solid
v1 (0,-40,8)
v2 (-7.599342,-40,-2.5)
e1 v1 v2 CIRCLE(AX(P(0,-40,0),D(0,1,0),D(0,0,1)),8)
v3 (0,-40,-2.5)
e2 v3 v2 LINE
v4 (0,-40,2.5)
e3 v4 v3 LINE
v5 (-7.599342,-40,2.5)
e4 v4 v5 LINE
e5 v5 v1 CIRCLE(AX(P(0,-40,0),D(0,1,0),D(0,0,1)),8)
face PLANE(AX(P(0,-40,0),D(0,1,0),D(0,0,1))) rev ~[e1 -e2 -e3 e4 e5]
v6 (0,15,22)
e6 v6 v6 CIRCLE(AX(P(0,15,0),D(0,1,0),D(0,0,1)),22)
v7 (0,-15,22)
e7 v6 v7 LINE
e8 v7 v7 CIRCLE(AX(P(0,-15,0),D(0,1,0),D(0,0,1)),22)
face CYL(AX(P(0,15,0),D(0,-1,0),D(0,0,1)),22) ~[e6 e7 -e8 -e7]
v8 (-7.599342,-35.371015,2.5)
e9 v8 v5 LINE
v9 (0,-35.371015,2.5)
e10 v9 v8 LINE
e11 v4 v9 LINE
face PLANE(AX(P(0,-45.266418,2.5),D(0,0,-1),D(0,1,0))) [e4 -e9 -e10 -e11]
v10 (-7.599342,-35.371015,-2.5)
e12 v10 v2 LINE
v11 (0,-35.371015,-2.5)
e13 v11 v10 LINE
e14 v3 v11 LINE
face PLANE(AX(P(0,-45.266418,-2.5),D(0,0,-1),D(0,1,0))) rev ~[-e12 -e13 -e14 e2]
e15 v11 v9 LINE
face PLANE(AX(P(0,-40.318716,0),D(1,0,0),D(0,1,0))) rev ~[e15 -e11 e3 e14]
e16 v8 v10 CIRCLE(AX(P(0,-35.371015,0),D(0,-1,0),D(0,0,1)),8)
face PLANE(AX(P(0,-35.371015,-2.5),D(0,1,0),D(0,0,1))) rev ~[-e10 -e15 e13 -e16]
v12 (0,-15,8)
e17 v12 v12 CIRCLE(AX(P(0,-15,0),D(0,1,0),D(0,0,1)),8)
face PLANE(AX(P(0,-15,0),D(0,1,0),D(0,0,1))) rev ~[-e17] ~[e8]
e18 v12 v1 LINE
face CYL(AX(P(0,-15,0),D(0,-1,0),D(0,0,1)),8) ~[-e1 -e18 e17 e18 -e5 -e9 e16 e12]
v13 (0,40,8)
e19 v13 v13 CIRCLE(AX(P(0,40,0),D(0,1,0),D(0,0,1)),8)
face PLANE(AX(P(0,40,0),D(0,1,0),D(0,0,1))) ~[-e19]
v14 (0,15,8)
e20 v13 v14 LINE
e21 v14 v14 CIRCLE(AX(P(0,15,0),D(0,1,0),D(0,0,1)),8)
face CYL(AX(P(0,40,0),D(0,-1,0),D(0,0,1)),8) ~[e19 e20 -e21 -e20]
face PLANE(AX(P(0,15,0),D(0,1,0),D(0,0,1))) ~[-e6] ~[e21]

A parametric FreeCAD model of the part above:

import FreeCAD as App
import Part
import Sketcher

V = App.Vector
Q = App.Units.Quantity


def add_polygon(sketch, points):
    """Adds a closed chain of lines whose ends are joined by coincident constraints."""
    first, n = sketch.GeometryCount, len(points)
    for a, b in zip(points, points[1:] + points[:1]):
        sketch.addGeometry(Part.LineSegment(App.Vector(*a, 0), App.Vector(*b, 0)), False)
    for i in range(n):
        sketch.addConstraint(Sketcher.Constraint("Coincident", first + i, 2, first + (i + 1) % n, 1))

doc = App.newDocument("Part")
params = doc.addObject("Spreadsheet::Sheet", "Params")
for row, (alias, value) in enumerate([
    ("sketch1_width", "80 mm"),
    ("sketch1_width2", "25 mm"),
    ("sketch1_height", "8 mm"),
    ("sketch1_height2", "14 mm"),
    ("revolution_angle", "360 deg"),
    ("sketch2_height", "5 mm"),
], start=1):
    params.set(f"A{row}", alias)
    params.set(f"B{row}", "=" + value)
    params.setAlias(f"B{row}", alias)

body = doc.addObject("PartDesign::Body", "Body")

# Sketch on YZ plane
sketch1 = body.newObject("Sketcher::SketchObject", "Sketch")
sketch1.AttachmentSupport = (doc.getObject("YZ_Plane"), [""])
sketch1.MapMode = "FlatFace"
add_polygon(sketch1, [(-40, 8), (-40, 0), (40, 0), (40, 8), (15, 8), (15, 22), (-15, 22), (-15, 8)])  # lines 0-7
sketch1.addConstraint([
    Sketcher.Constraint("Vertical", 0),
    Sketcher.Constraint("Horizontal", 1),
    Sketcher.Constraint("Vertical", 2),
    Sketcher.Constraint("Horizontal", 3),
    Sketcher.Constraint("Vertical", 4),
    Sketcher.Constraint("Horizontal", 5),
    Sketcher.Constraint("Vertical", 6),
    Sketcher.Constraint("Horizontal", 7),
    Sketcher.Constraint("Symmetric", 0, 2, 1, 2, -1, 1),
    Sketcher.Constraint("Symmetric", 3, 2, 6, 2, -2),
    Sketcher.Constraint("DistanceX", 1, 1, 1, 2, Q("80 mm")),
    Sketcher.Constraint("DistanceX", 3, 2, 3, 1, Q("25 mm")),
    Sketcher.Constraint("DistanceY", 0, 2, 0, 1, Q("8 mm")),
    Sketcher.Constraint("DistanceY", 4, 1, 4, 2, Q("14 mm")),
])
sketch1.setExpression("Constraints[18]", "Params.sketch1_width")
sketch1.setExpression("Constraints[19]", "Params.sketch1_width2")
sketch1.setExpression("Constraints[20]", "Params.sketch1_height")
sketch1.setExpression("Constraints[21]", "Params.sketch1_height2")
revolution = body.newObject("PartDesign::Revolution", "Revolution")
revolution.Profile = sketch1
revolution.ReferenceAxis = (sketch1, ["H_Axis"])
revolution.setExpression("Angle", "Params.revolution_angle")

# Sketch on YZ plane
sketch2 = body.newObject("Sketcher::SketchObject", "Sketch001")
sketch2.AttachmentSupport = (doc.getObject("YZ_Plane"), [""])
sketch2.MapMode = "FlatFace"
add_polygon(sketch2, [(-45, 2), (-45, -2), (-35, -2), (-35, 2)])  # lines 0-3
sketch2.addConstraint([
    Sketcher.Constraint("Vertical", 0),
    Sketcher.Constraint("Horizontal", 1),
    Sketcher.Constraint("Vertical", 2),
    Sketcher.Constraint("Horizontal", 3),
    Sketcher.Constraint("DistanceY", 0, 2, 0, 1, Q("5 mm")),
    Sketcher.Constraint("DistanceY", 0, 2, -1, 1, Q("2.5 mm")),
    Sketcher.Constraint("DistanceX", 1, 1, 1, 2, Q("9.895403 mm")),
    Sketcher.Constraint("DistanceX", 0, 2, -1, 1, Q("45.266418 mm")),
])
sketch2.setExpression("Constraints[8]", "Params.sketch2_height")
pocket1 = body.newObject("PartDesign::Pocket", "Pocket")
pocket1.Profile = sketch2
pocket1.Type = "ThroughAll"

doc.recompute()
